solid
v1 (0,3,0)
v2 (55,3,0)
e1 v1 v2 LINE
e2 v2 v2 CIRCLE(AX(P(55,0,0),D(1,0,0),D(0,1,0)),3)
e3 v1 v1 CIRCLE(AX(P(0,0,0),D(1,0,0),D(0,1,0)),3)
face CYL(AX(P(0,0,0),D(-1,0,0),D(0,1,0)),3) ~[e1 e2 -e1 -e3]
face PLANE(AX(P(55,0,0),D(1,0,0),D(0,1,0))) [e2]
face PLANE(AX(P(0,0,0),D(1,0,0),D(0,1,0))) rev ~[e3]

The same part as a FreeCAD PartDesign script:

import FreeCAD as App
import Part
import Sketcher

V = App.Vector

doc = App.newDocument("Part")
params = doc.addObject("Spreadsheet::Sheet", "Params")
for row, (alias, value) in enumerate([
    ("sketch1_diameter", "6 mm"),
    ("pad1_length", "55 mm"),
], start=1):
    params.set(f"A{row}", alias)
    params.set(f"B{row}", "=" + value)
    params.setAlias(f"B{row}", alias)

body = doc.addObject("PartDesign::Body", "Body")

sketch1 = doc.addObject("Sketcher::SketchObject", "Sketch")
body.addObject(sketch1)
sketch1.AttachmentSupport = (doc.YZ_Plane, [""])
sketch1.MapMode = "FlatFace"
sketch1.addGeometry(Part.Circle(V(0, 0, 0), V(0, 0, 1), 3), False)
sketch1.addConstraint(Sketcher.Constraint("Coincident", 0, 3, -1, 1))
sketch1.addConstraint(Sketcher.Constraint("Diameter", 0, 6.0))
sketch1.setExpression("Constraints[1]", "Params.sketch1_diameter")
pad1 = doc.addObject("PartDesign::Pad", "Pad")
body.addObject(pad1)
pad1.Profile = sketch1
pad1.setExpression("Length", "Params.pad1_length")

doc.recompute()
